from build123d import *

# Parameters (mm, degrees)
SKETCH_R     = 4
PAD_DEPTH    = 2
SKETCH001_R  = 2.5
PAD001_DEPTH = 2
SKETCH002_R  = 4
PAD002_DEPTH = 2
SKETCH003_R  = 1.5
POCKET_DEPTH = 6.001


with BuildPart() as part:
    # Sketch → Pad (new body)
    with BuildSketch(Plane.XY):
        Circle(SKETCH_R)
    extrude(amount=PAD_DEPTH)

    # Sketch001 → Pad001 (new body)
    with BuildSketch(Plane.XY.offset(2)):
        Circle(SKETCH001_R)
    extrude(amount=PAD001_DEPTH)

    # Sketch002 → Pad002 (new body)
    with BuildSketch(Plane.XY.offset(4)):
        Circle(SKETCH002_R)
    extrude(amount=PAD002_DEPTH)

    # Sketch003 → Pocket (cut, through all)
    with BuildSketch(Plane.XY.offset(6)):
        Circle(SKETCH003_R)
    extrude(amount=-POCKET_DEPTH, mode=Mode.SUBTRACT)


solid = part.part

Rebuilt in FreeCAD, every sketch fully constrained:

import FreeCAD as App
import Part
import Sketcher
from FreeCAD import Vector

doc = App.newDocument("Part")
params = doc.addObject("Spreadsheet::Sheet", "Params")
for row, (alias, value) in enumerate([
    ("sketch1_diameter", "8 mm"),
    ("pad1_length", "2 mm"),
    ("sketch2_diameter", "5 mm"),
    ("pad2_length", "2 mm"),
    ("sketch3_diameter", "8 mm"),
    ("pad3_length", "2 mm"),
    ("sketch4_diameter", "3 mm"),
], start=1):
    params.set(f"A{row}", alias)
    params.set(f"B{row}", "=" + value)
    params.setAlias(f"B{row}", alias)

body = doc.addObject("PartDesign::Body", "Body")

# Sketch on XY plane
sketch1 = doc.addObject("Sketcher::SketchObject", "Sketch")
body.addObject(sketch1)
sketch1.AttachmentSupport = (doc.XY_Plane, [""])
sketch1.MapMode = "FlatFace"
sketch1.addGeometry(Part.Circle(Vector(0, 0, 0), Vector(0, 0, 1), 4), False)
sketch1.addConstraint([
    Sketcher.Constraint("Coincident", 0, 3, -1, 1),
    Sketcher.Constraint("Diameter", 0, 8.0),
])
sketch1.setExpression("Constraints[1]", "Params.sketch1_diameter")
pad1 = doc.addObject("PartDesign::Pad", "Pad")
body.addObject(pad1)
pad1.Profile = sketch1
pad1.setExpression("Length", "Params.pad1_length")

# Sketch on XY plane
sketch2 = doc.addObject("Sketcher::SketchObject", "Sketch001")
body.addObject(sketch2)
sketch2.AttachmentSupport = (doc.XY_Plane, [""])
sketch2.MapMode = "FlatFace"
sketch2.AttachmentOffset = App.Placement(Vector(0, 0, 2), App.Rotation())
sketch2.addGeometry(Part.Circle(Vector(0, 0, 0), Vector(0, 0, 1), 2.5), False)
sketch2.addConstraint([
    Sketcher.Constraint("Coincident", 0, 3, -1, 1),
    Sketcher.Constraint("Diameter", 0, 5.0),
])
sketch2.setExpression("Constraints[1]", "Params.sketch2_diameter")
pad2 = doc.addObject("PartDesign::Pad", "Pad001")
body.addObject(pad2)
pad2.Profile = sketch2
pad2.setExpression("Length", "Params.pad2_length")

# Sketch on XY plane
sketch3 = doc.addObject("Sketcher::SketchObject", "Sketch002")
body.addObject(sketch3)
sketch3.AttachmentSupport = (doc.XY_Plane, [""])
sketch3.MapMode = "FlatFace"
sketch3.AttachmentOffset = App.Placement(Vector(0, 0, 4), App.Rotation())
sketch3.addGeometry(Part.Circle(Vector(0, 0, 0), Vector(0, 0, 1), 4), False)
sketch3.addConstraint([
    Sketcher.Constraint("Coincident", 0, 3, -1, 1),
    Sketcher.Constraint("Diameter", 0, 8.0),
])
sketch3.setExpression("Constraints[1]", "Params.sketch3_diameter")
pad3 = doc.addObject("PartDesign::Pad", "Pad002")
body.addObject(pad3)
pad3.Profile = sketch3
pad3.setExpression("Length", "Params.pad3_length")

# Sketch on XY plane
sketch4 = doc.addObject("Sketcher::SketchObject", "Sketch003")
body.addObject(sketch4)
sketch4.AttachmentSupport = (doc.XY_Plane, [""])
sketch4.MapMode = "FlatFace"
sketch4.AttachmentOffset = App.Placement(Vector(0, 0, 6), App.Rotation())
sketch4.addGeometry(Part.Circle(Vector(0, 0, 0), Vector(0, 0, 1), 1.5), False)
sketch4.addConstraint([
    Sketcher.Constraint("Coincident", 0, 3, -1, 1),
    Sketcher.Constraint("Diameter", 0, 3.0),
])
sketch4.setExpression("Constraints[1]", "Params.sketch4_diameter")
pocket1 = doc.addObject("PartDesign::Pocket", "Pocket")
body.addObject(pocket1)
pocket1.Profile = sketch4
pocket1.Type = "ThroughAll"

doc.recompute()
